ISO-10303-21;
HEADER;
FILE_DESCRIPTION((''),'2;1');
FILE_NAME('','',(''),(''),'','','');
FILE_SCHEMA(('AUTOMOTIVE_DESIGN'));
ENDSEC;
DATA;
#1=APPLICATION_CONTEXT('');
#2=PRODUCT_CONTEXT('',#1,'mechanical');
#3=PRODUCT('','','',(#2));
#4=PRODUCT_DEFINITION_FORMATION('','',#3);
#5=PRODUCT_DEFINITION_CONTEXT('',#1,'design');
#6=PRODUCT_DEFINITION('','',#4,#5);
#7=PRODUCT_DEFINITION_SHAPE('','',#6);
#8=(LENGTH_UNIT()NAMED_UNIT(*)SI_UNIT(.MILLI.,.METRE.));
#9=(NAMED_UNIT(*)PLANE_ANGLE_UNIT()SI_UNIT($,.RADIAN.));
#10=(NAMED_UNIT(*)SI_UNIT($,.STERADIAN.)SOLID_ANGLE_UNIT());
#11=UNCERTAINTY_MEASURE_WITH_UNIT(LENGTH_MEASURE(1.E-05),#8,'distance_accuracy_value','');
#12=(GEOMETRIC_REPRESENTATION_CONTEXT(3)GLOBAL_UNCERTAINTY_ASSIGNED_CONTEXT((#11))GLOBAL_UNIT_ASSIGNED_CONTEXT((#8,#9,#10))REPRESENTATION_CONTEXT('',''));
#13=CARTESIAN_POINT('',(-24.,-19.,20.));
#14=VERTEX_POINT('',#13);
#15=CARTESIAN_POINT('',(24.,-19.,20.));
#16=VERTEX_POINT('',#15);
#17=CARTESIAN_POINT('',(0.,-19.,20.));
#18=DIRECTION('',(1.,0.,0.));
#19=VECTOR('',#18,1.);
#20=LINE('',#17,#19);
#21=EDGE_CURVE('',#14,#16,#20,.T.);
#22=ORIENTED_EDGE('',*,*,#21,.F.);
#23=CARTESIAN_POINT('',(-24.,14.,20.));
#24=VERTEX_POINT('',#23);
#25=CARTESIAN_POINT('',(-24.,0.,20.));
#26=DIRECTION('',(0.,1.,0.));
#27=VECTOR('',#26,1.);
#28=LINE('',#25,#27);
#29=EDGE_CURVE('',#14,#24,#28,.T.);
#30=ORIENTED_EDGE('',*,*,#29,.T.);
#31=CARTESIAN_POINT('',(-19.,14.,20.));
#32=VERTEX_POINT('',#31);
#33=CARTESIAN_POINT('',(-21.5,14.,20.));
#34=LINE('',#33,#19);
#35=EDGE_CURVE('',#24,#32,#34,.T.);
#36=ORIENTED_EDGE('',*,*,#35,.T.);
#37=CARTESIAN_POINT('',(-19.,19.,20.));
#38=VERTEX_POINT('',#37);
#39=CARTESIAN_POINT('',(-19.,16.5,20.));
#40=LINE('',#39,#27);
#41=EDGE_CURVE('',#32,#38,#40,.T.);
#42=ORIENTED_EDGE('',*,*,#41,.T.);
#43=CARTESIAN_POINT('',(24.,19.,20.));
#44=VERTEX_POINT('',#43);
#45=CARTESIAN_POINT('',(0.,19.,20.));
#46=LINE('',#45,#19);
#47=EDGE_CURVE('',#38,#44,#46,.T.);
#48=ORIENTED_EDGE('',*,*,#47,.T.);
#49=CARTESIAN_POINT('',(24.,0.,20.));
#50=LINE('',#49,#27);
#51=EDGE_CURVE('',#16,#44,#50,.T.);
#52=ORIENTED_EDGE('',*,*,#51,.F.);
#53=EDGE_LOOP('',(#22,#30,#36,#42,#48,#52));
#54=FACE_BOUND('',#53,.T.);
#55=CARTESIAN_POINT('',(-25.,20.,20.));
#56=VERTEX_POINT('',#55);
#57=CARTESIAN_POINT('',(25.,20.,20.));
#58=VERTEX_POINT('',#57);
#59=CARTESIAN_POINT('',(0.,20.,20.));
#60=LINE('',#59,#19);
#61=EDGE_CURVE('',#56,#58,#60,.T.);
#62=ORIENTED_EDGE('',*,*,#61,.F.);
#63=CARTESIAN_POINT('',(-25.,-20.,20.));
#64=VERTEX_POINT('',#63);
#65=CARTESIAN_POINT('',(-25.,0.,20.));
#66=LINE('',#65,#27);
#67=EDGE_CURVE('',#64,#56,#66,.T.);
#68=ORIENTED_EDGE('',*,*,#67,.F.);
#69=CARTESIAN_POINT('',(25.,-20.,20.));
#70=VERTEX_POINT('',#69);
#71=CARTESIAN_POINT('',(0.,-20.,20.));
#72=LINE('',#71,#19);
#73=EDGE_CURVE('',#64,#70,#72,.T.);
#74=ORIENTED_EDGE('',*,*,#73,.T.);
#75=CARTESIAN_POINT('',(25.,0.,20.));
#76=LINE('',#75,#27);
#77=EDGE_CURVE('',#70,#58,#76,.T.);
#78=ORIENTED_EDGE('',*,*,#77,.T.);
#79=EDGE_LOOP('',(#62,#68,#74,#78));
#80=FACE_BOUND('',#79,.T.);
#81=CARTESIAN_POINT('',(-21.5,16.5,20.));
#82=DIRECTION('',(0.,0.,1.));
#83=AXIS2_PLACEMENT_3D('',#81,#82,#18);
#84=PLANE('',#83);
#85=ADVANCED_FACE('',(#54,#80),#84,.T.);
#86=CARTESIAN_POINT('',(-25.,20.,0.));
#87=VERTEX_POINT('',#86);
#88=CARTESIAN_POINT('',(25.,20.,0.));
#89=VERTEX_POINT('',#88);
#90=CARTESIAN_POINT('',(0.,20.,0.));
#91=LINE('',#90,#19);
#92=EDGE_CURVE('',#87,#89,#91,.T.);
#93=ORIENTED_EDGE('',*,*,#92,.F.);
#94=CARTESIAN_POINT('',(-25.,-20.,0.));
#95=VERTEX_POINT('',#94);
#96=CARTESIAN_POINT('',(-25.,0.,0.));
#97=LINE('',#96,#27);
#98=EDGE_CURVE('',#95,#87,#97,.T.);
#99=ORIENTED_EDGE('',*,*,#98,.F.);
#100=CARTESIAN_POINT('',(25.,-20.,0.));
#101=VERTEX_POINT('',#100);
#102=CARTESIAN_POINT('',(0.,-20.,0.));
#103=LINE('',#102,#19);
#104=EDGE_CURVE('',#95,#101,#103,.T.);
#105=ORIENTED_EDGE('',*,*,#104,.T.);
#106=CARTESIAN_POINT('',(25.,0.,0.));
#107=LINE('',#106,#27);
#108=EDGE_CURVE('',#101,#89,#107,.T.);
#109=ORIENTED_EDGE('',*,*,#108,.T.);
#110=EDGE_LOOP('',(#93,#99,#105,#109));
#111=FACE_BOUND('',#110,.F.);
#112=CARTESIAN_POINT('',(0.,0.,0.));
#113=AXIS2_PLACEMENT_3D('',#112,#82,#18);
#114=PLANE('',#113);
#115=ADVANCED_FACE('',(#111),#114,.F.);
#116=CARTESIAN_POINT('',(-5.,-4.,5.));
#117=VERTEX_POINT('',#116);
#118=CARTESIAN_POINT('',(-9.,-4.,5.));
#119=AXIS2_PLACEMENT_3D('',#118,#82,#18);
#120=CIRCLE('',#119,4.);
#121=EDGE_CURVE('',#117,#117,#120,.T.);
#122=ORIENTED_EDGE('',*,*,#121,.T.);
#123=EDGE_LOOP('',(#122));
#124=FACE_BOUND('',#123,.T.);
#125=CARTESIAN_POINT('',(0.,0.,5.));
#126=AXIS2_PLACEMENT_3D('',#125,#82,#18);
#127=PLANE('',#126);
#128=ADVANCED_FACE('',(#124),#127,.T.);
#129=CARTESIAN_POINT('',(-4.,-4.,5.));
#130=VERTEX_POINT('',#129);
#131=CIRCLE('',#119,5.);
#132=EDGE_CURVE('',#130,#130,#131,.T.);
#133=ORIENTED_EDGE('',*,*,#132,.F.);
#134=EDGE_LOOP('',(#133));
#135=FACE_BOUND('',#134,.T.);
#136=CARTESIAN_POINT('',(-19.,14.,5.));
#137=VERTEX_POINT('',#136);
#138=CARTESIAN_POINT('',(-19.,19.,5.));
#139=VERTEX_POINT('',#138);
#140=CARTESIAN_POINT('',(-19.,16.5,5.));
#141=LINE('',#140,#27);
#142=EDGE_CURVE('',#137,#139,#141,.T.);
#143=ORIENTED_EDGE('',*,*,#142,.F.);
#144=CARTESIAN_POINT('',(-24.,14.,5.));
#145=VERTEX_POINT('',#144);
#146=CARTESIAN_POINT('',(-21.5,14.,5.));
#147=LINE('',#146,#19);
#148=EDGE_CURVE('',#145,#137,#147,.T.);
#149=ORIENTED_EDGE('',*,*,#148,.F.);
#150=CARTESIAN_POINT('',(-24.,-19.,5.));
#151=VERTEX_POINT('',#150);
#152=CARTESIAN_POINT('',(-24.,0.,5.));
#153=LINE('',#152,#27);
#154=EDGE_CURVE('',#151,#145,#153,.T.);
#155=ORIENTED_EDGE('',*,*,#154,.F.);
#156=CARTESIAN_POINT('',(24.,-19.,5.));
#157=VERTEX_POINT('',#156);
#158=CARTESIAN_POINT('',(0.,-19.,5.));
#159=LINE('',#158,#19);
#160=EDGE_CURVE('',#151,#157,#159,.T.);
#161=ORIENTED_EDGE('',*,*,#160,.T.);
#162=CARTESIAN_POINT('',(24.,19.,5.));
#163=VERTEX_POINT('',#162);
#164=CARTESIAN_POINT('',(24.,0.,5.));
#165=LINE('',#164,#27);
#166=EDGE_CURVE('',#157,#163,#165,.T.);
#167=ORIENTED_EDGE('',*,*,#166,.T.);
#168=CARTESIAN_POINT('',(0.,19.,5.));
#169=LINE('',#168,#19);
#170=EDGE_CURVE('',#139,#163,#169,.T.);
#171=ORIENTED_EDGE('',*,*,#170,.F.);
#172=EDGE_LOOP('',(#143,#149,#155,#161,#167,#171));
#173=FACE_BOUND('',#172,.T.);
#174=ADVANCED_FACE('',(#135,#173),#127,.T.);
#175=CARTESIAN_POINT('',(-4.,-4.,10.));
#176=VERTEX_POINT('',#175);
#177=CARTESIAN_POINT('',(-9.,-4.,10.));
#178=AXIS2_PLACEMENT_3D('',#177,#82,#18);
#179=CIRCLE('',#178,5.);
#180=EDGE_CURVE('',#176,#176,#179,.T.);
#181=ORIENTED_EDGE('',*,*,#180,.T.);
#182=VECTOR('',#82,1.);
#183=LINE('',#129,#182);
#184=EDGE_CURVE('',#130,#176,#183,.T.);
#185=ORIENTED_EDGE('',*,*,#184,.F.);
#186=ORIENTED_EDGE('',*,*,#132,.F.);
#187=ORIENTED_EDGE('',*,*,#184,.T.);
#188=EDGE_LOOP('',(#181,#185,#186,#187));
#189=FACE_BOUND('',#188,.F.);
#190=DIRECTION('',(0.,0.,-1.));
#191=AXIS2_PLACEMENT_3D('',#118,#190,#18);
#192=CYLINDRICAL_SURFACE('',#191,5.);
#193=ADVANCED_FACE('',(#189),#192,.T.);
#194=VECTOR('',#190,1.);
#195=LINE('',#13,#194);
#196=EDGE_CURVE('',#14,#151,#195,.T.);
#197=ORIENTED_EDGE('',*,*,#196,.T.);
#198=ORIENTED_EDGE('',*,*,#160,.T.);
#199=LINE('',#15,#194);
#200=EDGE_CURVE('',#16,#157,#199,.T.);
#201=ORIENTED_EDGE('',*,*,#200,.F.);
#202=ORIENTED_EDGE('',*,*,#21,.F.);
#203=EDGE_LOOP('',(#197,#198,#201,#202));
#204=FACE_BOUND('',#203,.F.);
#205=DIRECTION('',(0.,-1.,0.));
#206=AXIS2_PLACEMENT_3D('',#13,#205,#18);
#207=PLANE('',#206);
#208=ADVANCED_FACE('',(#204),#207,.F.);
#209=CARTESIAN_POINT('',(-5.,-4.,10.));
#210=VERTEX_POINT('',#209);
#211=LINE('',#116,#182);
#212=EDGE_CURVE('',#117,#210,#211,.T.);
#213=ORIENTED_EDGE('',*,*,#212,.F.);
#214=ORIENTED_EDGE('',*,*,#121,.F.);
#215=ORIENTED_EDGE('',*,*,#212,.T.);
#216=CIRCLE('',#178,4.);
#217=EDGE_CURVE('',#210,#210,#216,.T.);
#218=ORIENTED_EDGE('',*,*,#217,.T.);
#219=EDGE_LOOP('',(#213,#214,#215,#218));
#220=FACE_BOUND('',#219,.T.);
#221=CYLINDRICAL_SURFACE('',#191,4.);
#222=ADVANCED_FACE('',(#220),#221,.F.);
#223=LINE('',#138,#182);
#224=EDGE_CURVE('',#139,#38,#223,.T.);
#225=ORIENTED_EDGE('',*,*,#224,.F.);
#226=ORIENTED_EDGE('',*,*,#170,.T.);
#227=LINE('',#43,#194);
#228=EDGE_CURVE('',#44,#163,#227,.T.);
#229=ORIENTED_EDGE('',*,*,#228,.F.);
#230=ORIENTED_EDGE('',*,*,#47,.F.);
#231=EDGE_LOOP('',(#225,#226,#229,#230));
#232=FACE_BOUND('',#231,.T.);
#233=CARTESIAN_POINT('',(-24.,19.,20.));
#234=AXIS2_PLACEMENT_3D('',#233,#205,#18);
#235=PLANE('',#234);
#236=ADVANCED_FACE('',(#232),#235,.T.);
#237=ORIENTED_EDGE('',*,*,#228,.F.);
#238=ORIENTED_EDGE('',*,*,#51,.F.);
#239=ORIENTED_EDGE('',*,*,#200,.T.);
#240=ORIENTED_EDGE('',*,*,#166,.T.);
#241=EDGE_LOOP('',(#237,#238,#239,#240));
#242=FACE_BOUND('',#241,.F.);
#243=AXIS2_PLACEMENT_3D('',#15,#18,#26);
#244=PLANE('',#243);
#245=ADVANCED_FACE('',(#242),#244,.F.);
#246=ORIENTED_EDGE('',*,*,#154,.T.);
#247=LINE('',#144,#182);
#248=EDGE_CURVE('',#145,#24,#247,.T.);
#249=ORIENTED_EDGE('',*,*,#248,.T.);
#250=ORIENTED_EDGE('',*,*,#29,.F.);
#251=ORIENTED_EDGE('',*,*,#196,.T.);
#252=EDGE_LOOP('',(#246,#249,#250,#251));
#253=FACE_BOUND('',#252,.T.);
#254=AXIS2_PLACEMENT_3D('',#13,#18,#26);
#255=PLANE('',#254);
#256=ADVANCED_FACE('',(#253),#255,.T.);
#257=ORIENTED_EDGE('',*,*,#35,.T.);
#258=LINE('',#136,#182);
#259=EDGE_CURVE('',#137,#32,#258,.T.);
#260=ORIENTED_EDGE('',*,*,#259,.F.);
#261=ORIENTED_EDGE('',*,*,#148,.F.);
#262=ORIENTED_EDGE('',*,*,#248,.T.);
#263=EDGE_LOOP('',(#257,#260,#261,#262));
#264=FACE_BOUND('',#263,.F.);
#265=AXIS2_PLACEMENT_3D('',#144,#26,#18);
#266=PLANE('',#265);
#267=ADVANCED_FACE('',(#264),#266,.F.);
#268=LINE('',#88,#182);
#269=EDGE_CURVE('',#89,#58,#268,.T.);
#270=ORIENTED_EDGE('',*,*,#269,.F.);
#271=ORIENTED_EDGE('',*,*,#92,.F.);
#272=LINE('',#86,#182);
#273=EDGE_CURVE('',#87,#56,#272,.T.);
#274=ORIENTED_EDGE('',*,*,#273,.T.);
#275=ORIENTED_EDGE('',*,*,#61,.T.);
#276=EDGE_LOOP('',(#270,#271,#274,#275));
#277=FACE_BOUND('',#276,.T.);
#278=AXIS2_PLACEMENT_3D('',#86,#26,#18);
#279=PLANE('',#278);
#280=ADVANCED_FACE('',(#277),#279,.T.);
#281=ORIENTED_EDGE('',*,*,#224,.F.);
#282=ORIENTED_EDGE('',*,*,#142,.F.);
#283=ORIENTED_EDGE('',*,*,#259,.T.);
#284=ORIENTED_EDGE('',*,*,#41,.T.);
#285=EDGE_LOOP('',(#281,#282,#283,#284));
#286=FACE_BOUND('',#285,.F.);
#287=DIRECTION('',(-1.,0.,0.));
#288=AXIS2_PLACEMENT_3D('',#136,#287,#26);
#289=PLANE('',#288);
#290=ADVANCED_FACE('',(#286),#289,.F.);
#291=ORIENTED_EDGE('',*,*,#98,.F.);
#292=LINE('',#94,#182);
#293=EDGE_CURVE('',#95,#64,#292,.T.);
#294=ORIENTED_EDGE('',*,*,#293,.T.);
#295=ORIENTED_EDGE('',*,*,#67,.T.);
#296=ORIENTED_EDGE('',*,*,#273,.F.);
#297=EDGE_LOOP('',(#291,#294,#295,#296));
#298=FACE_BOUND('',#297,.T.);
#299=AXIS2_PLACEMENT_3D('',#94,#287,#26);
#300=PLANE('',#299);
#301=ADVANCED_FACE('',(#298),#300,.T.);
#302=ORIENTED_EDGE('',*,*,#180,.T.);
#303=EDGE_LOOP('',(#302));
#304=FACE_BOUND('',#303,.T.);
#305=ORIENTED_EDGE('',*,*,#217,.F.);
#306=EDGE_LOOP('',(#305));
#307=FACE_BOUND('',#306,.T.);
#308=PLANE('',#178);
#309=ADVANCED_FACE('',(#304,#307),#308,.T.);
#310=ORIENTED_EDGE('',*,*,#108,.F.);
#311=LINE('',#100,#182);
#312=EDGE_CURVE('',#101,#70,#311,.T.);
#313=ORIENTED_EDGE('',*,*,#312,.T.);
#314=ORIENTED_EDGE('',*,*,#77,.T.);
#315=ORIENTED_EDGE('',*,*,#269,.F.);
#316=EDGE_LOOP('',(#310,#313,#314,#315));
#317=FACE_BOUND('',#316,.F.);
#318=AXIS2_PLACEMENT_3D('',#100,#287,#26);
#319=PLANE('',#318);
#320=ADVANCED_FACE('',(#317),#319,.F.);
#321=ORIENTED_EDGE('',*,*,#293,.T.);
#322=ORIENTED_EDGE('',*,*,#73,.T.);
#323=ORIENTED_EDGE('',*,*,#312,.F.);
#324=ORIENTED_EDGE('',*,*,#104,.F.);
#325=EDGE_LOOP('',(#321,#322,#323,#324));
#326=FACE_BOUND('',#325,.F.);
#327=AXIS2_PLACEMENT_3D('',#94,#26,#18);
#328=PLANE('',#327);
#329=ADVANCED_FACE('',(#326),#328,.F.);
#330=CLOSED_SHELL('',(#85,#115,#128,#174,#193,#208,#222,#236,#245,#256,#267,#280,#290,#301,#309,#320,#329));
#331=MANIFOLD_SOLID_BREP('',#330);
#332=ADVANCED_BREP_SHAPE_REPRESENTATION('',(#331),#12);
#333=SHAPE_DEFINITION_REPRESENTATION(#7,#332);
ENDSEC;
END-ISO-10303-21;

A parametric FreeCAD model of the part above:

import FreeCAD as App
import Part
import Sketcher
Q = App.Units.Quantity


def add_polygon(sketch, points):
    """Adds a closed chain of lines whose ends are joined by coincident constraints."""
    first, n = sketch.GeometryCount, len(points)
    for a, b in zip(points, points[1:] + points[:1]):
        sketch.addGeometry(Part.LineSegment(App.Vector(*a, 0), App.Vector(*b, 0)), False)
    for i in range(n):
        sketch.addConstraint(Sketcher.Constraint("Coincident", first + i, 2, first + (i + 1) % n, 1))

doc = App.newDocument("Part")
body = doc.addObject("PartDesign::Body", "Body")

# Sketch on XY plane
sketch1 = body.newObject("Sketcher::SketchObject", "Sketch")
sketch1.AttachmentSupport = (doc.getObject("XY_Plane"), [""])
sketch1.MapMode = "FlatFace"
add_polygon(sketch1, [(-25, 20), (-25, -20), (25, -20), (25, 20)])  # lines 0-3
sketch1.addConstraint(Sketcher.Constraint("Vertical", 0))
sketch1.addConstraint(Sketcher.Constraint("Horizontal", 1))
sketch1.addConstraint(Sketcher.Constraint("Vertical", 2))
sketch1.addConstraint(Sketcher.Constraint("Horizontal", 3))
sketch1.addConstraint(Sketcher.Constraint("Symmetric", 0, 2, 2, 2, -1, 1))
sketch1.addConstraint(Sketcher.Constraint("DistanceX", 1, 1, 1, 2, Q("50 mm")))
sketch1.addConstraint(Sketcher.Constraint("DistanceY", 0, 2, 0, 1, Q("40 mm")))
pad1 = body.newObject("PartDesign::Pad", "Pad")
pad1.Profile = sketch1
pad1.Length = 20

# Sketch on XY plane
sketch2 = body.newObject("Sketcher::SketchObject", "Sketch001")
sketch2.AttachmentSupport = (doc.getObject("XY_Plane"), [""])
sketch2.MapMode = "FlatFace"
sketch2.AttachmentOffset = App.Placement(App.Vector(0, 0, 20), App.Rotation())
add_polygon(sketch2, [(-24, 19), (-24, -19), (24, -19), (24, 19)])  # lines 0-3
sketch2.addConstraint(Sketcher.Constraint("Vertical", 0))
sketch2.addConstraint(Sketcher.Constraint("Horizontal", 1))
sketch2.addConstraint(Sketcher.Constraint("Vertical", 2))
sketch2.addConstraint(Sketcher.Constraint("Horizontal", 3))
sketch2.addConstraint(Sketcher.Constraint("Symmetric", 0, 2, 2, 2, -1, 1))
sketch2.addConstraint(Sketcher.Constraint("DistanceX", 1, 1, 1, 2, Q("48 mm")))
sketch2.addConstraint(Sketcher.Constraint("DistanceY", 0, 2, 0, 1, Q("38 mm")))
pocket1 = body.newObject("PartDesign::Pocket", "Pocket")
pocket1.Profile = sketch2
pocket1.Length = 15

# Sketch on XY plane
sketch3 = body.newObject("Sketcher::SketchObject", "Sketch002")
sketch3.AttachmentSupport = (doc.getObject("XY_Plane"), [""])
sketch3.MapMode = "FlatFace"
sketch3.AttachmentOffset = App.Placement(App.Vector(0, 0, 5), App.Rotation())
add_polygon(sketch3, [(-24, 19), (-24, 14), (-19, 14), (-19, 19)])  # lines 0-3
sketch3.addConstraint(Sketcher.Constraint("Vertical", 0))
sketch3.addConstraint(Sketcher.Constraint("Horizontal", 1))
sketch3.addConstraint(Sketcher.Constraint("Vertical", 2))
sketch3.addConstraint(Sketcher.Constraint("Horizontal", 3))
sketch3.addConstraint(Sketcher.Constraint("Equal", 3, 0))
sketch3.addConstraint(Sketcher.Constraint("DistanceX", 1, 1, 1, 2, Q("5 mm")))
sketch3.addConstraint(Sketcher.Constraint("DistanceX", 0, 2, -1, 1, Q("24 mm")))
sketch3.addConstraint(Sketcher.Constraint("DistanceY", -1, 1, 0, 2, Q("14 mm")))
pad2 = body.newObject("PartDesign::Pad", "Pad001")
pad2.Profile = sketch3
pad2.Length = 15

# Sketch on XY plane
sketch4 = body.newObject("Sketcher::SketchObject", "Sketch003")
sketch4.AttachmentSupport = (doc.getObject("XY_Plane"), [""])
sketch4.MapMode = "FlatFace"
sketch4.AttachmentOffset = App.Placement(App.Vector(0, 0, 5), App.Rotation())
sketch4.addGeometry(Part.Circle(App.Vector(-9, -4, 0), App.Vector(0, 0, 1), 5), False)
sketch4.addGeometry(Part.Circle(App.Vector(-9, -4, 0), App.Vector(0, 0, 1), 4), False)
sketch4.addConstraint(Sketcher.Constraint("Coincident", 1, 3, 0, 3))
sketch4.addConstraint(Sketcher.Constraint("Diameter", 0, Q("10 mm")))
sketch4.addConstraint(Sketcher.Constraint("Diameter", 1, Q("8 mm")))
sketch4.addConstraint(Sketcher.Constraint("DistanceX", 0, 3, -1, 1, Q("9 mm")))
sketch4.addConstraint(Sketcher.Constraint("DistanceY", 0, 3, -1, 1, Q("4 mm")))
pad3 = body.newObject("PartDesign::Pad", "Pad002")
pad3.Profile = sketch4
pad3.Length = 5

doc.recompute()
